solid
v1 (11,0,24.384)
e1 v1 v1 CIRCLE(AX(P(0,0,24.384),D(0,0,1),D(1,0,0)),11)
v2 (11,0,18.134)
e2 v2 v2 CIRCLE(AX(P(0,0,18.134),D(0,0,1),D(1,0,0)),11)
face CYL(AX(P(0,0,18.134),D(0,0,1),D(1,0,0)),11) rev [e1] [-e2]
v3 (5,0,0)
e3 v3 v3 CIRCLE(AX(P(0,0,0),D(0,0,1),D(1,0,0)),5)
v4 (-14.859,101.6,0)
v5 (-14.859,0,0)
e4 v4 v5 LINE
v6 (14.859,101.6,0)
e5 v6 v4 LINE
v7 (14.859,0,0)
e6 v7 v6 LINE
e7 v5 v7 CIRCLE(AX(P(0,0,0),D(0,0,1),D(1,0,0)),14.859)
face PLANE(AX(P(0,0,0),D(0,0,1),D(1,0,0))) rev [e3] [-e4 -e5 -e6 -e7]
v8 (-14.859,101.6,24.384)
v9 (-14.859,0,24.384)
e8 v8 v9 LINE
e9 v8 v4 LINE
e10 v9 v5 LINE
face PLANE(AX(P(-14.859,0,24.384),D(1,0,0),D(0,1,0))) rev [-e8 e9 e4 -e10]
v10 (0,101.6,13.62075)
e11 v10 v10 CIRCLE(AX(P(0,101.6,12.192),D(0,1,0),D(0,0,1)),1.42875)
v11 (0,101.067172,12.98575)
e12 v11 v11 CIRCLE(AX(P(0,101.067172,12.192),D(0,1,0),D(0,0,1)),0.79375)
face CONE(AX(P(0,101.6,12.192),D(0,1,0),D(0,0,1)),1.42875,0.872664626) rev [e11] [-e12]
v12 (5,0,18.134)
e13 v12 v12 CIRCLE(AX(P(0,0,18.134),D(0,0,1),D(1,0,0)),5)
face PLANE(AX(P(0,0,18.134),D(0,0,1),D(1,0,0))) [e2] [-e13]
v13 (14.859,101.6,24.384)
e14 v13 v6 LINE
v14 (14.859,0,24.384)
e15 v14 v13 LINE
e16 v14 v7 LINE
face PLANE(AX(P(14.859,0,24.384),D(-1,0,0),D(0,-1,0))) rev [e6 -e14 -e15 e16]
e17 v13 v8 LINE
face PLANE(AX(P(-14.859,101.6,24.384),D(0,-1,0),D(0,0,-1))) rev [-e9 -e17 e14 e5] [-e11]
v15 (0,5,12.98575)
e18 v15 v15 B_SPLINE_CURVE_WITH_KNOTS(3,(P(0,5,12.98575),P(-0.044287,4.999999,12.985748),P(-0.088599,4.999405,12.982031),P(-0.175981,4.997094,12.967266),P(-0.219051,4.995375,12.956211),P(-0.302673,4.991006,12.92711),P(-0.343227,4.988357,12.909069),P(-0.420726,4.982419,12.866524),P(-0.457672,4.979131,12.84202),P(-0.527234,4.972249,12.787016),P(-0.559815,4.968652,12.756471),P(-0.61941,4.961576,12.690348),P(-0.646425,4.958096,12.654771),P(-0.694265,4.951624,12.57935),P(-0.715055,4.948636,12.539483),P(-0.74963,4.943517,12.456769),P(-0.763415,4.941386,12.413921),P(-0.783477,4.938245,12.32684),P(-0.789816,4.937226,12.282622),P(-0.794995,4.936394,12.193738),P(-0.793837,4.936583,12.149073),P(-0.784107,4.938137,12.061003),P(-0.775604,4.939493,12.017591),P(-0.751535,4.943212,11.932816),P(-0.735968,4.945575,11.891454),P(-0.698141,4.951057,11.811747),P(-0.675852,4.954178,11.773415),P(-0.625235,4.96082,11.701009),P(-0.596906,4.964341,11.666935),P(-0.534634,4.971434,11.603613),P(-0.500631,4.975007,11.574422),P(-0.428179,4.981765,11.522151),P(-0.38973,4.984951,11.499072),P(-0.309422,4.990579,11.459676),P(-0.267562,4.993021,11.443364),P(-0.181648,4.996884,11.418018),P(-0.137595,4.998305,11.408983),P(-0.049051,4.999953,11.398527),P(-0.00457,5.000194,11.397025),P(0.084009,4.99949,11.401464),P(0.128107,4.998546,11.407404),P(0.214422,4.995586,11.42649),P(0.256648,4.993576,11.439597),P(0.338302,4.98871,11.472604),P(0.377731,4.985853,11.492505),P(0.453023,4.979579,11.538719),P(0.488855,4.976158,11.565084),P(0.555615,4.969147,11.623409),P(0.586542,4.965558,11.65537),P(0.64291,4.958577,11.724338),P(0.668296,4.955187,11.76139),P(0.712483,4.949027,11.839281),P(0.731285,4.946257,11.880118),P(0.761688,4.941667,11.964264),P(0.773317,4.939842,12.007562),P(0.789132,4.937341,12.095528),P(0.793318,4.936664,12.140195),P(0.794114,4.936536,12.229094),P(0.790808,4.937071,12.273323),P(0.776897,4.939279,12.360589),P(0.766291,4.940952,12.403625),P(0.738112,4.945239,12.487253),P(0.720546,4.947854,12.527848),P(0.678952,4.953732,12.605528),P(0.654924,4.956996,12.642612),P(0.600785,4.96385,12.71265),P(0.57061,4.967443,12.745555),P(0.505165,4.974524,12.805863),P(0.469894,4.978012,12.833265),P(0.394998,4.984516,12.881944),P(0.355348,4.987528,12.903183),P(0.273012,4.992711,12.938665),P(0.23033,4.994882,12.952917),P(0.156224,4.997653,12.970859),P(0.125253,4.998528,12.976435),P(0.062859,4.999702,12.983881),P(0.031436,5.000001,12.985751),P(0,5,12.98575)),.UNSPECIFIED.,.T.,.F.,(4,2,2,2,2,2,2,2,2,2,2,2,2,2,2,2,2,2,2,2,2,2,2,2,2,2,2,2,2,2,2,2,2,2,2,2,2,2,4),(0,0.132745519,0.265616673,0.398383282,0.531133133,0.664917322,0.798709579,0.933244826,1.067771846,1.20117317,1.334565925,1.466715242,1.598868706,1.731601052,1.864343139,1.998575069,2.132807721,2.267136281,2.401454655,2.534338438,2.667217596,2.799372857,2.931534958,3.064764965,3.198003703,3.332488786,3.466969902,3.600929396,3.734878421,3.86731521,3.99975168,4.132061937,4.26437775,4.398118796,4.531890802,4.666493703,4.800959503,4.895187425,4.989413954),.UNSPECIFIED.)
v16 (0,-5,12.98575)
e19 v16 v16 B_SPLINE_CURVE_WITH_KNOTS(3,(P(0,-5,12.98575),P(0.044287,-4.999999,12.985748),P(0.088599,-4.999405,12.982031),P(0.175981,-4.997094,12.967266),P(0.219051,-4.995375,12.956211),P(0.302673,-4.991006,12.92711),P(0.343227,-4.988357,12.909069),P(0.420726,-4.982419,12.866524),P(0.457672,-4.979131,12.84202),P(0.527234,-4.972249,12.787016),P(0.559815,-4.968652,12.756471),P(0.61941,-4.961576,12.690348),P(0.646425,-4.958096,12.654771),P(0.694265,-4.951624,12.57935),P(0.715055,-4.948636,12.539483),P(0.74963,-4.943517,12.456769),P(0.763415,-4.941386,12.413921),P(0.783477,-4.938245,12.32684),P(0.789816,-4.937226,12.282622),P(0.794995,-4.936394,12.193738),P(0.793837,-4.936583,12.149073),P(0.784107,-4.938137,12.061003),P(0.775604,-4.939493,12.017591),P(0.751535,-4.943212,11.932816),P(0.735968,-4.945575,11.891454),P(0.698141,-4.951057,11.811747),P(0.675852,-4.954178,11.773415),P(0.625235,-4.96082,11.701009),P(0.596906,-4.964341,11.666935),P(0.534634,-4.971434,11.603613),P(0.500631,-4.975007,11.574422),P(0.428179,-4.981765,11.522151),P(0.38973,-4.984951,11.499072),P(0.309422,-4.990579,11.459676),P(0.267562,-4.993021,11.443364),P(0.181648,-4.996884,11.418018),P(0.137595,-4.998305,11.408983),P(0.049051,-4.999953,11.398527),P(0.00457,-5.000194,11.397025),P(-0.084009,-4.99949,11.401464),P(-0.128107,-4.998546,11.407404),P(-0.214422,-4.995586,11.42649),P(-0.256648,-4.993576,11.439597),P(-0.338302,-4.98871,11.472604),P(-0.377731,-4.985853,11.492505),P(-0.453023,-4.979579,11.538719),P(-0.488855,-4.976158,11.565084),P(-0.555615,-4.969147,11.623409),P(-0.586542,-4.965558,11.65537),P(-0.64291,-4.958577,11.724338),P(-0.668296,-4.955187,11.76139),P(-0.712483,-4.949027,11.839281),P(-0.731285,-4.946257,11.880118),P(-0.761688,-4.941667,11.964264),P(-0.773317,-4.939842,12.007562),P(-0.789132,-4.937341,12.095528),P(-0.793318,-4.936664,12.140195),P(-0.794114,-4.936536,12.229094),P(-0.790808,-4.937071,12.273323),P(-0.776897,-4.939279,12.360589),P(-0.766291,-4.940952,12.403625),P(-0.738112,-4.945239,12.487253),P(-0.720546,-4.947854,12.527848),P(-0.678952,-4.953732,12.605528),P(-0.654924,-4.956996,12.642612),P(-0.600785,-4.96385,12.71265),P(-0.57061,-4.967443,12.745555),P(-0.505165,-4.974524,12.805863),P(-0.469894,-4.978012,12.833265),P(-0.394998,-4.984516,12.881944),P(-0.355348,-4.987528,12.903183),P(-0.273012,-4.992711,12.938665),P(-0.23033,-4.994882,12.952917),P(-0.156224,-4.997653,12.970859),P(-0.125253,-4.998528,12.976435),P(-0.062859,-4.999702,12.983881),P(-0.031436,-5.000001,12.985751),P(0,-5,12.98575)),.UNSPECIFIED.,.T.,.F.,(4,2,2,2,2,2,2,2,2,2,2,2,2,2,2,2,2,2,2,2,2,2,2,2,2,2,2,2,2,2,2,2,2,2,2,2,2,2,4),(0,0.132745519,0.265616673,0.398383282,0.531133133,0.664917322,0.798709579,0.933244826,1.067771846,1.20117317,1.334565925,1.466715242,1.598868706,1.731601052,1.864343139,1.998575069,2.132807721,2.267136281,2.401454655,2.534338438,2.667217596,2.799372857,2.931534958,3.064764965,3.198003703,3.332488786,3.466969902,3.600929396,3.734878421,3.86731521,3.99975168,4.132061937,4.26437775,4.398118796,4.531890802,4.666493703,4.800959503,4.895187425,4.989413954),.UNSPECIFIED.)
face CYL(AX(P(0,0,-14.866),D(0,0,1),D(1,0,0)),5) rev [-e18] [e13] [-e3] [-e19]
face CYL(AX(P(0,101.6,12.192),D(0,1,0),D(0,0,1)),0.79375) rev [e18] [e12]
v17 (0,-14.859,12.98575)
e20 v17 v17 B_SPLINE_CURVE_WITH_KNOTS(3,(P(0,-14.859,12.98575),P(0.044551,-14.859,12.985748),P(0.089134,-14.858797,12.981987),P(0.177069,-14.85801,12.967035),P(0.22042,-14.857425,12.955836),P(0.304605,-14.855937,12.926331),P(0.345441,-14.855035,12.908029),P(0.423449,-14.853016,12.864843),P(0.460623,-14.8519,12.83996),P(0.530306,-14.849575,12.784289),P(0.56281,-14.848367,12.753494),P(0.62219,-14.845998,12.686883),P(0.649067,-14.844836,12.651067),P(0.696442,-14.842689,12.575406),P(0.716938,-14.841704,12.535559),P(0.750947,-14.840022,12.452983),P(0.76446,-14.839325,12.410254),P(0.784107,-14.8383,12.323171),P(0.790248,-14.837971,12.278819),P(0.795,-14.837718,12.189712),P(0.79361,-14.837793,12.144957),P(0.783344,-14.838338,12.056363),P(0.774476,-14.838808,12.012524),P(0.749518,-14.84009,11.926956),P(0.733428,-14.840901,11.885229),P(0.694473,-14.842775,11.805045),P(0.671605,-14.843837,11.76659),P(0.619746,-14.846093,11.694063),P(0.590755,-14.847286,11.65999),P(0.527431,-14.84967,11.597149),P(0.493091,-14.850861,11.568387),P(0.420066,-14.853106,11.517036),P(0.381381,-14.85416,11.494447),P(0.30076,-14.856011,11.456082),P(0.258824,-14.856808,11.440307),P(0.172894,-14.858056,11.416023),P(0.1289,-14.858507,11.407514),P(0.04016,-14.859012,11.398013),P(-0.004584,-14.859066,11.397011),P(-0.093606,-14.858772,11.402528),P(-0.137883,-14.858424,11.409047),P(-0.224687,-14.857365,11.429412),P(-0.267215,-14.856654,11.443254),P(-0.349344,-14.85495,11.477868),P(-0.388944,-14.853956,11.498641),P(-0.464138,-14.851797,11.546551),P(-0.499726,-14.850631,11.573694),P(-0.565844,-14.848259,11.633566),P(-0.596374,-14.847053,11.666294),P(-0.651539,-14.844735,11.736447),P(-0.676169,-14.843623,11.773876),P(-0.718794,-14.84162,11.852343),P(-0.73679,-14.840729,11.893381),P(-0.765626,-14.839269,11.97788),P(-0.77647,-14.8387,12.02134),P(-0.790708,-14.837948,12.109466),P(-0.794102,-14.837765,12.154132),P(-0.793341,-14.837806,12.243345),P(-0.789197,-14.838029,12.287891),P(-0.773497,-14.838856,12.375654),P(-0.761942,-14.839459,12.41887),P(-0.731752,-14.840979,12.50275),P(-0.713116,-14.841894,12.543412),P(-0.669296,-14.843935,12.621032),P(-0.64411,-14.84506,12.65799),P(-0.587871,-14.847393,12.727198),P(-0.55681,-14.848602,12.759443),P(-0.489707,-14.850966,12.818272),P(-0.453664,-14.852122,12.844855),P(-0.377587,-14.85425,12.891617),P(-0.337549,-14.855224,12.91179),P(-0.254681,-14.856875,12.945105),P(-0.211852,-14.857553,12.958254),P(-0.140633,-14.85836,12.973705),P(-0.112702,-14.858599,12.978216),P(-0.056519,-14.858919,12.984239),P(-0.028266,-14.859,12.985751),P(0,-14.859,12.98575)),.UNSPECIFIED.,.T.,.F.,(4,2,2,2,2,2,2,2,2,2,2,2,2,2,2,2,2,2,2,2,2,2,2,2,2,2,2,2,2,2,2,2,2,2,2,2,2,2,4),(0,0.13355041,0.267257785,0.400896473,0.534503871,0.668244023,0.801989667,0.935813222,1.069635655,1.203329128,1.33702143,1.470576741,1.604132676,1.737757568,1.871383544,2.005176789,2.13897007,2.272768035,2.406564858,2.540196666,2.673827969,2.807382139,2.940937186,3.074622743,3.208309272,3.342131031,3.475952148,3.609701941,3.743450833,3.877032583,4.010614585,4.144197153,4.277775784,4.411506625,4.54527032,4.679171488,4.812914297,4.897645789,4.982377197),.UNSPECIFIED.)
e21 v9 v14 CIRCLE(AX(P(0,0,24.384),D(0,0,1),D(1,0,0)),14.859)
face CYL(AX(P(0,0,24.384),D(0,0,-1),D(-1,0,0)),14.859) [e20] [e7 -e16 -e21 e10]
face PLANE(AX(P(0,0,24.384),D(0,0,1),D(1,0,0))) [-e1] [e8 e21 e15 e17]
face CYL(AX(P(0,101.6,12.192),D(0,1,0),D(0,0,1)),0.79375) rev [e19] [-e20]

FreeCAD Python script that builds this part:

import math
import FreeCAD as App
import Part
import Sketcher

V = App.Vector
Q = App.Units.Quantity

doc = App.newDocument("Part")
body = doc.addObject("PartDesign::Body", "Body")

# Sketch on XY plane
sketch1 = doc.addObject("Sketcher::SketchObject", "Sketch")
body.addObject(sketch1)
sketch1.AttachmentSupport = (doc.XY_Plane, [""])
sketch1.MapMode = "FlatFace"
sketch1.addGeometry(Part.LineSegment(V(-14.859, 101.6, 0), V(-14.859, 0, 0)), False)
sketch1.addGeometry(Part.ArcOfCircle(Part.Circle(V(0, 0, 0), V(0, 0, 1), 14.859), math.radians(180), math.radians(360)), False)
sketch1.addGeometry(Part.LineSegment(V(14.859, 0, 0), V(14.859, 101.6, 0)), False)
sketch1.addGeometry(Part.LineSegment(V(14.859, 101.6, 0), V(-14.859, 101.6, 0)), False)
sketch1.addConstraint(Sketcher.Constraint("Tangent", 0, 2, 1, 1))
sketch1.addConstraint(Sketcher.Constraint("Tangent", 1, 2, 2, 1))
sketch1.addConstraint(Sketcher.Constraint("Coincident", 2, 2, 3, 1))
sketch1.addConstraint(Sketcher.Constraint("Coincident", 3, 2, 0, 1))
sketch1.addConstraint(Sketcher.Constraint("Vertical", 0))
sketch1.addConstraint(Sketcher.Constraint("Vertical", 2))
sketch1.addConstraint(Sketcher.Constraint("Horizontal", 3))
sketch1.addConstraint(Sketcher.Constraint("Coincident", 1, 3, -1, 1))
sketch1.addConstraint(Sketcher.Constraint("DistanceY", 0, 2, 0, 1, Q("4 in")))
sketch1.addConstraint(Sketcher.Constraint("Radius", 1, Q("0.585 in")))
pad1 = doc.addObject("PartDesign::Pad", "Pad")
body.addObject(pad1)
pad1.Profile = sketch1
pad1.Length = Q("0.96 in")

# Sketch on XZ plane
sketch2 = doc.addObject("Sketcher::SketchObject", "Sketch001")
body.addObject(sketch2)
sketch2.AttachmentSupport = (doc.XZ_Plane, [""])
sketch2.MapMode = "FlatFace"
sketch2.AttachmentOffset = App.Placement(V(0, 0, -4 * 25.4), App.Rotation())
sketch2.addGeometry(Part.Circle(V(0, 12.192, 0), V(0, 0, 1), 0.79375), False)
sketch2.addConstraint(Sketcher.Constraint("PointOnObject", 0, 3, -2))
sketch2.addConstraint(Sketcher.Constraint("Diameter", 0, Q("0.0625 in")))
sketch2.addConstraint(Sketcher.Constraint("DistanceY", -1, 1, 0, 3, Q("0.48 in")))
doc.recompute()
hole = doc.addObject("PartDesign::Hole", "Hole")
body.addObject(hole)
hole.Profile = sketch2
hole.ThreadType = "None"
hole.Diameter = Q("0.0625 in")
hole.DepthType = "ThroughAll"
hole.HoleCutType = "Countersink"
hole.HoleCutDiameter = Q("0.1125 in")
hole.HoleCutCountersinkAngle = 100
hole.Reversed = True

# Sketch on XY plane
sketch3 = doc.addObject("Sketcher::SketchObject", "Sketch002")
body.addObject(sketch3)
sketch3.AttachmentSupport = (doc.XY_Plane, [""])
sketch3.MapMode = "FlatFace"
sketch3.AttachmentOffset = App.Placement(V(0, 0, 0.96 * 25.4), App.Rotation())
sketch3.addGeometry(Part.Circle(V(0, 0, 0), V(0, 0, 1), 11), False)
sketch3.addConstraint(Sketcher.Constraint("Coincident", 0, 3, -1, 1))
sketch3.addConstraint(Sketcher.Constraint("Diameter", 0, Q("22 mm")))
pocket1 = doc.addObject("PartDesign::Pocket", "Pocket")
body.addObject(pocket1)
pocket1.Profile = sketch3
pocket1.Length = 6.25

# Sketch on XY plane
sketch4 = doc.addObject("Sketcher::SketchObject", "Sketch003")
body.addObject(sketch4)
sketch4.AttachmentSupport = (doc.XY_Plane, [""])
sketch4.MapMode = "FlatFace"
sketch4.AttachmentOffset = App.Placement(V(0, 0, 18.134), App.Rotation())
sketch4.addGeometry(Part.Circle(V(0, 0, 0), V(0, 0, 1), 5), False)
sketch4.addConstraint(Sketcher.Constraint("Coincident", 0, 3, -1, 1))
sketch4.addConstraint(Sketcher.Constraint("Diameter", 0, Q("10 mm")))
pocket2 = doc.addObject("PartDesign::Pocket", "Pocket001")
body.addObject(pocket2)
pocket2.Profile = sketch4
pocket2.Length = 33

doc.recompute()
